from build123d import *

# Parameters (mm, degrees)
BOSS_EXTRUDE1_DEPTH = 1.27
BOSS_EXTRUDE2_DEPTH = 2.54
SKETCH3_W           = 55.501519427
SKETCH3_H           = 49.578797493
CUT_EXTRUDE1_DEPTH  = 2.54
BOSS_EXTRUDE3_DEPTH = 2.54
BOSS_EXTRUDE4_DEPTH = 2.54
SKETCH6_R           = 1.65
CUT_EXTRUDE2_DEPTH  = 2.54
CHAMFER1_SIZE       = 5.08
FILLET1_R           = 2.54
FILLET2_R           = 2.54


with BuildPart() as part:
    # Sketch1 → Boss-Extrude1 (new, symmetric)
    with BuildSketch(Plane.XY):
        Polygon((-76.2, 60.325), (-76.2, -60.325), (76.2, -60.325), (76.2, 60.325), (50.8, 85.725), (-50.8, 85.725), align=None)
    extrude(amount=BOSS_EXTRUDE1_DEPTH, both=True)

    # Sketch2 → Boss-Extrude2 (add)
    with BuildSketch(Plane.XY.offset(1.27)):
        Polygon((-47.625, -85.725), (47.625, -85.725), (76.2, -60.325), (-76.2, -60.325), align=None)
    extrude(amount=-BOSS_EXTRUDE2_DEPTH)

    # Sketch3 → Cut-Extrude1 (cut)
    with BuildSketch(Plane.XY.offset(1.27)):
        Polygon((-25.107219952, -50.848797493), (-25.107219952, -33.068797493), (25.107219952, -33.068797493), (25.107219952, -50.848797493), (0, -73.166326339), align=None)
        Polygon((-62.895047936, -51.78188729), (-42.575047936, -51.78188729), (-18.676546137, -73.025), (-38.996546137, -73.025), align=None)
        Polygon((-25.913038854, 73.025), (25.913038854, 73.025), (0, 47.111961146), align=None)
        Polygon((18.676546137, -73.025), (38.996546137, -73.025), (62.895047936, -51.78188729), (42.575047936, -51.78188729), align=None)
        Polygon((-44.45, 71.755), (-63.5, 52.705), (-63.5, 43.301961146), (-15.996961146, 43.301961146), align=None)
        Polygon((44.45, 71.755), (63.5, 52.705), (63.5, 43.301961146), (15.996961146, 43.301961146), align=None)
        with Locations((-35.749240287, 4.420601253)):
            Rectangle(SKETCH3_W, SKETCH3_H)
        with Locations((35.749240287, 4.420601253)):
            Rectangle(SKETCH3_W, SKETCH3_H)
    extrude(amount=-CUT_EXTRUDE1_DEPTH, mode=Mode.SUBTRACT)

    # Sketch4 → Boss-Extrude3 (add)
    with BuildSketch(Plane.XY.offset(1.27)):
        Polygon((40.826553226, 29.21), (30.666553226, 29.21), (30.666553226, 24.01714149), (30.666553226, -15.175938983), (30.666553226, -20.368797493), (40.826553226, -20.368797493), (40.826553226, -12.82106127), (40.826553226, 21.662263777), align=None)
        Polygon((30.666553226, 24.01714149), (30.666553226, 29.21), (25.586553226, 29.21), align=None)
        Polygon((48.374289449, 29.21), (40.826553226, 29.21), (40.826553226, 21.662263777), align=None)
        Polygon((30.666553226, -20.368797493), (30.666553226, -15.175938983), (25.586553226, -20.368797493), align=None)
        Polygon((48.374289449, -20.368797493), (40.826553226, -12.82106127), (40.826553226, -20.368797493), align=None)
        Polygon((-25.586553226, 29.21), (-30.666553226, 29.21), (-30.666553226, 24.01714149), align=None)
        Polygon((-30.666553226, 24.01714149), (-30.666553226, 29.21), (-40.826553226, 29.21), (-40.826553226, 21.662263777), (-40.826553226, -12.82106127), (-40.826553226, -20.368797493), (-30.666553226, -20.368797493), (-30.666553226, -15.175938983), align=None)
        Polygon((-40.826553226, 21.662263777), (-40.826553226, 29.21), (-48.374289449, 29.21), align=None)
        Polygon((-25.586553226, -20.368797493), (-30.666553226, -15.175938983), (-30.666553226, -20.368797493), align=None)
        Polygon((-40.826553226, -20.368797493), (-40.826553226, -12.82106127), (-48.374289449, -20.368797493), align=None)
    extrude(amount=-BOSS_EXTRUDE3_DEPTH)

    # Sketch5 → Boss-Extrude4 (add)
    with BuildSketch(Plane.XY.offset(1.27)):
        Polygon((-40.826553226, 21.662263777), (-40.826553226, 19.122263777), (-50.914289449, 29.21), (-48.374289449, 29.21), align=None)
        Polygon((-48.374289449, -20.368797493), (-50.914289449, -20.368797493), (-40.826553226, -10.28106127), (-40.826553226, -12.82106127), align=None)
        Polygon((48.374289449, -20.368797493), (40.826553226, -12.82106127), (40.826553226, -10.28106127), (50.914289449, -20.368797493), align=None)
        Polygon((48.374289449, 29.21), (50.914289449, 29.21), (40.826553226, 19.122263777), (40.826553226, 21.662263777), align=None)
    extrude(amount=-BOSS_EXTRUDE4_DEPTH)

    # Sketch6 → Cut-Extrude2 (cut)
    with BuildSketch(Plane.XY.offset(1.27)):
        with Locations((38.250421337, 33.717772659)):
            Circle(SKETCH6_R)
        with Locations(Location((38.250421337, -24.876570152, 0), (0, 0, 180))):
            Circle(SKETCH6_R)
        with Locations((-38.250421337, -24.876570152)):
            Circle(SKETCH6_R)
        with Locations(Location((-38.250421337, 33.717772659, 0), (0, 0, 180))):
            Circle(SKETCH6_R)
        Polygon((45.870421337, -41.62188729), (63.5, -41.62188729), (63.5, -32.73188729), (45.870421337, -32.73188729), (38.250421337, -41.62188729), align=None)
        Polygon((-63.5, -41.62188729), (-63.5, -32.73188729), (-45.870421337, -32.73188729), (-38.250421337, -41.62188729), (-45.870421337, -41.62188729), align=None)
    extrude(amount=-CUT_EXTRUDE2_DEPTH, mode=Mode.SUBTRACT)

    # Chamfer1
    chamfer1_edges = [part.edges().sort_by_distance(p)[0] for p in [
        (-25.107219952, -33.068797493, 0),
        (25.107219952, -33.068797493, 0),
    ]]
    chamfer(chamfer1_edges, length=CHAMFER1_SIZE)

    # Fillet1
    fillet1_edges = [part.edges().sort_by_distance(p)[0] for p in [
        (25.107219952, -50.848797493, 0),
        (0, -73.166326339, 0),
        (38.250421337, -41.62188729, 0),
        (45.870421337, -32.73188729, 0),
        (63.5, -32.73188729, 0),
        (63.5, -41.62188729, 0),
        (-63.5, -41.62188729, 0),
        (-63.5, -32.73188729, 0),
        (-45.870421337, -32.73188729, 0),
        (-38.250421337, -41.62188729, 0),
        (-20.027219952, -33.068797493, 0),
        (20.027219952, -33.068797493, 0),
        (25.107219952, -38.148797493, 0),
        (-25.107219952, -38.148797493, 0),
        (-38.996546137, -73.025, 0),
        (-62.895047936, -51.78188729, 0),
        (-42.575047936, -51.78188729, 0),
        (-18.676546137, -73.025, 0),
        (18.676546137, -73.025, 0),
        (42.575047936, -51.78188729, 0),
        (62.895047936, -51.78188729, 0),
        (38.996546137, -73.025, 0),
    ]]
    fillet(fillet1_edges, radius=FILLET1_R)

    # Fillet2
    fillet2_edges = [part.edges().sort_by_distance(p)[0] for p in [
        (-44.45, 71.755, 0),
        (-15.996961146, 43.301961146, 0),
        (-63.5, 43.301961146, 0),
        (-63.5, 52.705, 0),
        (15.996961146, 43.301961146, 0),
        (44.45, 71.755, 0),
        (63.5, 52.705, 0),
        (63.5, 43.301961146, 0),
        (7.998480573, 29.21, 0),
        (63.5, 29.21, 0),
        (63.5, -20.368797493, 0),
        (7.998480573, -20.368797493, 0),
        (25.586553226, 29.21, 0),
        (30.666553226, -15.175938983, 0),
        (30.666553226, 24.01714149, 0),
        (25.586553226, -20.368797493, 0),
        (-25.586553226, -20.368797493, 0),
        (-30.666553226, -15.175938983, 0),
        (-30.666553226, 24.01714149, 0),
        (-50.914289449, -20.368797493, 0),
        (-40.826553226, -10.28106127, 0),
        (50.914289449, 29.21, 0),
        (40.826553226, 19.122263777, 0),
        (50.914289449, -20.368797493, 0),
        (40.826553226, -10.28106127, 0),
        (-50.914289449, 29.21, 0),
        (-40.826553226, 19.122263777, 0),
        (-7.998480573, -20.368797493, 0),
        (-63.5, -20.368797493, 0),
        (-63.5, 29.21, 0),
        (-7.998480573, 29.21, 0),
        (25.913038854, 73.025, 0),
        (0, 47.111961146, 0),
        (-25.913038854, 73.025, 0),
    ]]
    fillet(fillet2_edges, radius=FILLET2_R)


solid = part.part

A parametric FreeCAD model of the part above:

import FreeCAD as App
import Part
import Sketcher
from FreeCAD import Vector
Q = App.Units.Quantity


def edges_at(feature, points):
    """Names of the edges that pass closest to the given points."""
    edges = feature.Shape.Edges
    near = lambda p: min(range(len(edges)), key=lambda i: edges[i].distToShape(Part.Vertex(*p))[0])
    return sorted({f"Edge{near(p) + 1}" for p in points})

doc = App.newDocument("Part")
body = doc.addObject("PartDesign::Body", "Body")

sketch1 = doc.addObject("Sketcher::SketchObject", "Sketch")
body.addObject(sketch1)
sketch1.AttachmentSupport = (doc.XY_Plane, [""])
sketch1.MapMode = "FlatFace"
sketch1.addGeometry([
    Part.LineSegment(Vector(-76, 60, 0), Vector(-76, -60, 0)),
    Part.LineSegment(Vector(-76, -60, 0), Vector(76, -60, 0)),
    Part.LineSegment(Vector(76, -60, 0), Vector(76, 60, 0)),
    Part.LineSegment(Vector(76, 60, 0), Vector(51, 86, 0)),
    Part.LineSegment(Vector(51, 86, 0), Vector(-51, 86, 0)),
    Part.LineSegment(Vector(-51, 86, 0), Vector(-76, 60, 0)),
], False)
sketch1.addConstraint([
    Sketcher.Constraint("Coincident", 0, 2, 1, 1),
    Sketcher.Constraint("Coincident", 1, 2, 2, 1),
    Sketcher.Constraint("Coincident", 2, 2, 3, 1),
    Sketcher.Constraint("Coincident", 3, 2, 4, 1),
    Sketcher.Constraint("Coincident", 4, 2, 5, 1),
    Sketcher.Constraint("Coincident", 5, 2, 0, 1),
    Sketcher.Constraint("Vertical", 0),
    Sketcher.Constraint("Horizontal", 1),
    Sketcher.Constraint("Vertical", 2),
    Sketcher.Constraint("Horizontal", 4),
    Sketcher.Constraint("Symmetric", 0, 2, 2, 2, -1, 1),
    Sketcher.Constraint("Perpendicular", 3, 5),
    Sketcher.Constraint("Horizontal", 2, 2, 5, 2),
    Sketcher.Constraint("Equal", 3, 5),
    Sketcher.Constraint("DistanceX", 1, 1, 1, 2, Q("6 in")),
    Sketcher.Constraint("DistanceX", 4, 2, 4, 1, Q("4 in")),
    Sketcher.Constraint("DistanceY", 0, 2, 0, 1, Q("4.75 in")),
])
pad1 = doc.addObject("PartDesign::Pad", "Pad")
body.addObject(pad1)
pad1.Profile = sketch1
pad1.Length = Q("0.1 in")
pad1.Midplane = True

sketch2 = doc.addObject("Sketcher::SketchObject", "Sketch001")
body.addObject(sketch2)
sketch2.AttachmentSupport = (doc.XY_Plane, [""])
sketch2.MapMode = "FlatFace"
sketch2.AttachmentOffset = App.Placement(Vector(0, 0, 0.05 * 25.4), App.Rotation())
sketch2.addGeometry([
    Part.LineSegment(Vector(-48, -86, 0), Vector(48, -86, 0)),
    Part.LineSegment(Vector(48, -86, 0), Vector(76, -60, 0)),
    Part.LineSegment(Vector(76, -60, 0), Vector(-76, -60, 0)),
    Part.LineSegment(Vector(-76, -60, 0), Vector(-48, -86, 0)),
], False)
sketch2.addConstraint([
    Sketcher.Constraint("Coincident", 0, 2, 1, 1),
    Sketcher.Constraint("Coincident", 1, 2, 2, 1),
    Sketcher.Constraint("Coincident", 2, 2, 3, 1),
    Sketcher.Constraint("Coincident", 3, 2, 0, 1),
    Sketcher.Constraint("Horizontal", 0),
    Sketcher.Constraint("Horizontal", 2),
    Sketcher.Constraint("Equal", 1, 3),
    Sketcher.Constraint("DistanceX", 2, 2, 2, 1, Q("6 in")),
    Sketcher.Constraint("DistanceX", -1, 1, 1, 2, Q("3 in")),
    Sketcher.Constraint("DistanceY", 0, 2, 1, 2, Q("1 in")),
    Sketcher.Constraint("DistanceX", 0, 1, 0, 2, Q("3.75 in")),
    Sketcher.Constraint("DistanceY", 0, 2, -1, 1, Q("3.375 in")),
])
pad2 = doc.addObject("PartDesign::Pad", "Pad001")
body.addObject(pad2)
pad2.Profile = sketch2
pad2.Length = Q("0.1 in")
pad2.Reversed = True

sketch3 = doc.addObject("Sketcher::SketchObject", "Sketch002")
body.addObject(sketch3)
sketch3.AttachmentSupport = (doc.XY_Plane, [""])
sketch3.MapMode = "FlatFace"
sketch3.AttachmentOffset = App.Placement(Vector(0, 0, 0.05 * 25.4), App.Rotation())
sketch3.addGeometry([
    Part.LineSegment(Vector(-25, -33, 0), Vector(-25, -51, 0)),
    Part.LineSegment(Vector(-25, -51, 0), Vector(0, -73, 0)),
    Part.LineSegment(Vector(0, -73, 0), Vector(25, -51, 0)),
    Part.LineSegment(Vector(25, -51, 0), Vector(25, -33, 0)),
    Part.LineSegment(Vector(25, -33, 0), Vector(-25, -33, 0)),
    Part.LineSegment(Vector(-43, -52, 0), Vector(-63, -52, 0)),
    Part.LineSegment(Vector(-63, -52, 0), Vector(-39, -73, 0)),
    Part.LineSegment(Vector(-39, -73, 0), Vector(-19, -73, 0)),
    Part.LineSegment(Vector(-19, -73, 0), Vector(-43, -52, 0)),
    Part.LineSegment(Vector(26, 73, 0), Vector(-26, 73, 0)),
    Part.LineSegment(Vector(-26, 73, 0), Vector(0, 47, 0)),
    Part.LineSegment(Vector(0, 47, 0), Vector(26, 73, 0)),
    Part.LineSegment(Vector(19, -73, 0), Vector(39, -73, 0)),
    Part.LineSegment(Vector(39, -73, 0), Vector(63, -52, 0)),
    Part.LineSegment(Vector(63, -52, 0), Vector(43, -52, 0)),
    Part.LineSegment(Vector(43, -52, 0), Vector(19, -73, 0)),
    Part.LineSegment(Vector(-44, 72, 0), Vector(-64, 53, 0)),
    Part.LineSegment(Vector(-64, 53, 0), Vector(-64, 43, 0)),
    Part.LineSegment(Vector(-64, 43, 0), Vector(-16, 43, 0)),
    Part.LineSegment(Vector(-16, 43, 0), Vector(-44, 72, 0)),
    Part.LineSegment(Vector(64, 53, 0), Vector(44, 72, 0)),
    Part.LineSegment(Vector(44, 72, 0), Vector(16, 43, 0)),
    Part.LineSegment(Vector(16, 43, 0), Vector(64, 43, 0)),
    Part.LineSegment(Vector(64, 43, 0), Vector(64, 53, 0)),
    Part.LineSegment(Vector(-64, 29, 0), Vector(-64, -20, 0)),
    Part.LineSegment(Vector(-64, -20, 0), Vector(-8, -20, 0)),
    Part.LineSegment(Vector(-8, -20, 0), Vector(-8, 29, 0)),
    Part.LineSegment(Vector(-8, 29, 0), Vector(-64, 29, 0)),
    Part.LineSegment(Vector(8, 29, 0), Vector(8, -20, 0)),
    Part.LineSegment(Vector(8, -20, 0), Vector(64, -20, 0)),
    Part.LineSegment(Vector(64, -20, 0), Vector(64, 29, 0)),
    Part.LineSegment(Vector(64, 29, 0), Vector(8, 29, 0)),
], False)
sketch3.addConstraint([
    Sketcher.Constraint("Coincident", 0, 2, 1, 1),
    Sketcher.Constraint("Coincident", 1, 2, 2, 1),
    Sketcher.Constraint("Coincident", 2, 2, 3, 1),
    Sketcher.Constraint("Coincident", 3, 2, 4, 1),
    Sketcher.Constraint("Coincident", 4, 2, 0, 1),
    Sketcher.Constraint("Coincident", 5, 2, 6, 1),
    Sketcher.Constraint("Coincident", 6, 2, 7, 1),
    Sketcher.Constraint("Coincident", 7, 2, 8, 1),
    Sketcher.Constraint("Coincident", 8, 2, 5, 1),
    Sketcher.Constraint("Coincident", 9, 2, 10, 1),
    Sketcher.Constraint("Coincident", 10, 2, 11, 1),
    Sketcher.Constraint("Coincident", 11, 2, 9, 1),
    Sketcher.Constraint("Coincident", 12, 2, 13, 1),
    Sketcher.Constraint("Coincident", 13, 2, 14, 1),
    Sketcher.Constraint("Coincident", 14, 2, 15, 1),
    Sketcher.Constraint("Coincident", 15, 2, 12, 1),
    Sketcher.Constraint("Coincident", 16, 2, 17, 1),
    Sketcher.Constraint("Coincident", 17, 2, 18, 1),
    Sketcher.Constraint("Coincident", 18, 2, 19, 1),
    Sketcher.Constraint("Coincident", 19, 2, 16, 1),
    Sketcher.Constraint("Coincident", 20, 2, 21, 1),
    Sketcher.Constraint("Coincident", 21, 2, 22, 1),
    Sketcher.Constraint("Coincident", 22, 2, 23, 1),
    Sketcher.Constraint("Coincident", 23, 2, 20, 1),
    Sketcher.Constraint("Coincident", 24, 2, 25, 1),
    Sketcher.Constraint("Coincident", 25, 2, 26, 1),
    Sketcher.Constraint("Coincident", 26, 2, 27, 1),
    Sketcher.Constraint("Coincident", 27, 2, 24, 1),
    Sketcher.Constraint("Coincident", 28, 2, 29, 1),
    Sketcher.Constraint("Coincident", 29, 2, 30, 1),
    Sketcher.Constraint("Coincident", 30, 2, 31, 1),
    Sketcher.Constraint("Coincident", 31, 2, 28, 1),
    Sketcher.Constraint("Vertical", 0),
    Sketcher.Constraint("Vertical", 3),
    Sketcher.Constraint("Horizontal", 4),
    Sketcher.Constraint("Horizontal", 5),
    Sketcher.Constraint("Horizontal", 7),
    Sketcher.Constraint("Horizontal", 9),
    Sketcher.Constraint("Horizontal", 12),
    Sketcher.Constraint("Horizontal", 14),
    Sketcher.Constraint("Vertical", 17),
    Sketcher.Constraint("Horizontal", 18),
    Sketcher.Constraint("Horizontal", 22),
    Sketcher.Constraint("Vertical", 23),
    Sketcher.Constraint("Vertical", 24),
    Sketcher.Constraint("Horizontal", 25),
    Sketcher.Constraint("Vertical", 26),
    Sketcher.Constraint("Horizontal", 27),
    Sketcher.Constraint("Vertical", 28),
    Sketcher.Constraint("Horizontal", 29),
    Sketcher.Constraint("Vertical", 30),
    Sketcher.Constraint("Horizontal", 31),
    Sketcher.Constraint("Symmetric", 0, 2, 2, 2, -2),
    Sketcher.Constraint("Symmetric", 6, 2, 12, 2, -2),
    Sketcher.Constraint("Symmetric", 5, 2, 13, 2, -2),
    Sketcher.Constraint("Symmetric", 19, 2, 20, 2, -2),
    Sketcher.Constraint("Symmetric", 18, 2, 21, 2, -2),
    Sketcher.Constraint("Symmetric", 16, 2, 23, 2, -2),
    Sketcher.Constraint("Symmetric", 25, 2, 28, 2, -2),
    Sketcher.Constraint("Symmetric", 27, 2, 30, 2, -2),
    Sketcher.Constraint("PointOnObject", 1, 2, -2),
    Sketcher.Constraint("PointOnObject", 10, 2, -2),
    Sketcher.Constraint("Parallel", 1, 6),
    Sketcher.Constraint("Parallel", 6, 8),
    Sketcher.Constraint("Perpendicular", 10, 11),
    Sketcher.Constraint("Parallel", 13, 15),
    Sketcher.Constraint("Parallel", 11, 16),
    Sketcher.Constraint("Perpendicular", 16, 19),
    Sketcher.Constraint("Parallel", 19, 20),
    Sketcher.Constraint("Vertical", 17, 2, 24, 2),
    Sketcher.Constraint("Equal", 7, 12),
    Sketcher.Constraint("DistanceX", 5, 2, 5, 1, Q("0.8 in")),
    Sketcher.Constraint("DistanceY", 0, 2, 0, 1, Q("0.7 in")),
    Sketcher.Constraint("DistanceX", 16, 2, -1, 1, Q("2.5 in")),
    Sketcher.Constraint("DistanceY", 16, 2, 9, 2, Q("0.8 in")),
    Sketcher.Constraint("DistanceX", 19, 2, 20, 2, Q("3.5 in")),
    Sketcher.Constraint("DistanceY", 4, 2, 24, 2, Q("0.5 in")),
    Sketcher.Constraint("DistanceY", -1, 1, 26, 2, Q("1.15 in")),
    Sketcher.Constraint("DistanceY", 17, 2, 10, 2, Q("0.15 in")),
    Sketcher.Constraint("DistanceY", 6, 2, -1, 1, Q("2.875 in")),
    Sketcher.Constraint("DistanceY", -1, 1, 9, 2, Q("2.875 in")),
    Sketcher.Constraint("DistanceX", 4, 2, 4, 1, 50.21444),
    Sketcher.Constraint("DistanceX", 18, 1, 18, 2, 47.503039),
    Sketcher.Constraint("DistanceX", 25, 1, 25, 2, 55.501519),
    Sketcher.Constraint("DistanceX", 5, 2, 6, 2, 23.898502),
    Sketcher.Constraint("Distance", 1, 33.592329),
    Sketcher.Constraint("DistanceY", 24, 2, 24, 1, 49.578797),
    Sketcher.Constraint("DistanceX", 8, 2, 9, 2, 16.662009),
])
pocket1 = doc.addObject("PartDesign::Pocket", "Pocket")
body.addObject(pocket1)
pocket1.Profile = sketch3
pocket1.Length = Q("0.1 in")

sketch4 = doc.addObject("Sketcher::SketchObject", "Sketch003")
body.addObject(sketch4)
sketch4.AttachmentSupport = (doc.XY_Plane, [""])
sketch4.MapMode = "FlatFace"
sketch4.AttachmentOffset = App.Placement(Vector(0, 0, 0.05 * 25.4), App.Rotation())
sketch4.addGeometry([
    Part.LineSegment(Vector(26, 29, 0), Vector(31, 24, 0)),
    Part.LineSegment(Vector(31, 24, 0), Vector(31, -15, 0)),
    Part.LineSegment(Vector(31, -15, 0), Vector(26, -20, 0)),
    Part.LineSegment(Vector(26, -20, 0), Vector(48, -20, 0)),
    Part.LineSegment(Vector(48, -20, 0), Vector(41, -13, 0)),
    Part.LineSegment(Vector(41, -13, 0), Vector(41, 22, 0)),
    Part.LineSegment(Vector(41, 22, 0), Vector(48, 29, 0)),
    Part.LineSegment(Vector(48, 29, 0), Vector(26, 29, 0)),
    Part.LineSegment(Vector(-26, 29, 0), Vector(-48, 29, 0)),
    Part.LineSegment(Vector(-48, 29, 0), Vector(-41, 22, 0)),
    Part.LineSegment(Vector(-41, 22, 0), Vector(-41, -13, 0)),
    Part.LineSegment(Vector(-41, -13, 0), Vector(-48, -20, 0)),
    Part.LineSegment(Vector(-48, -20, 0), Vector(-26, -20, 0)),
    Part.LineSegment(Vector(-26, -20, 0), Vector(-31, -15, 0)),
    Part.LineSegment(Vector(-31, -15, 0), Vector(-31, 24, 0)),
    Part.LineSegment(Vector(-31, 24, 0), Vector(-26, 29, 0)),
], False)
sketch4.addConstraint([
    Sketcher.Constraint("Coincident", 0, 2, 1, 1),
    Sketcher.Constraint("Coincident", 1, 2, 2, 1),
    Sketcher.Constraint("Coincident", 2, 2, 3, 1),
    Sketcher.Constraint("Coincident", 3, 2, 4, 1),
    Sketcher.Constraint("Coincident", 4, 2, 5, 1),
    Sketcher.Constraint("Coincident", 5, 2, 6, 1),
    Sketcher.Constraint("Coincident", 6, 2, 7, 1),
    Sketcher.Constraint("Coincident", 7, 2, 0, 1),
    Sketcher.Constraint("Coincident", 8, 2, 9, 1),
    Sketcher.Constraint("Coincident", 9, 2, 10, 1),
    Sketcher.Constraint("Coincident", 10, 2, 11, 1),
    Sketcher.Constraint("Coincident", 11, 2, 12, 1),
    Sketcher.Constraint("Coincident", 12, 2, 13, 1),
    Sketcher.Constraint("Coincident", 13, 2, 14, 1),
    Sketcher.Constraint("Coincident", 14, 2, 15, 1),
    Sketcher.Constraint("Coincident", 15, 2, 8, 1),
    Sketcher.Constraint("Vertical", 1),
    Sketcher.Constraint("Horizontal", 3),
    Sketcher.Constraint("Vertical", 5),
    Sketcher.Constraint("Horizontal", 7),
    Sketcher.Constraint("Horizontal", 8),
    Sketcher.Constraint("Vertical", 10),
    Sketcher.Constraint("Horizontal", 12),
    Sketcher.Constraint("Vertical", 14),
    Sketcher.Constraint("Symmetric", 6, 2, 8, 2, -2),
    Sketcher.Constraint("Symmetric", 5, 2, 9, 2, -2),
    Sketcher.Constraint("Symmetric", 3, 2, 11, 2, -2),
    Sketcher.Constraint("Symmetric", 1, 2, 13, 2, -2),
    Sketcher.Constraint("Perpendicular", 4, 6),
    Sketcher.Constraint("Perpendicular", 6, 9),
    Sketcher.Constraint("Perpendicular", 9, 11),
    Sketcher.Constraint("Parallel", 0, 13),
    Sketcher.Constraint("Parallel", 2, 15),
    Sketcher.Constraint("Horizontal", 0, 2, 14, 2),
    Sketcher.Constraint("Vertical", 3, 2, 6, 2),
    Sketcher.Constraint("Vertical", 2, 2, 7, 2),
    Sketcher.Constraint("Vertical", 12, 2, 15, 2),
    Sketcher.Constraint("DistanceX", 2, 2, 1, 2, Q("0.2 in")),
    Sketcher.Constraint("DistanceX", 1, 2, 4, 2, Q("0.4 in")),
    Sketcher.Constraint("DistanceY", -1, 1, 6, 2, Q("1.15 in")),
    Sketcher.Constraint("DistanceY", 1, 2, 1, 1, 39.19308),
    Sketcher.Constraint("Distance", 4, 10.674111),
    Sketcher.Constraint("DistanceY", 5, 1, 5, 2, 34.483325),
    Sketcher.Constraint("DistanceX", -1, 1, 3, 2, 48.374289),
])
pad3 = doc.addObject("PartDesign::Pad", "Pad002")
body.addObject(pad3)
pad3.Profile = sketch4
pad3.Length = Q("0.1 in")
pad3.Reversed = True

sketch5 = doc.addObject("Sketcher::SketchObject", "Sketch004")
body.addObject(sketch5)
sketch5.AttachmentSupport = (doc.XY_Plane, [""])
sketch5.MapMode = "FlatFace"
sketch5.AttachmentOffset = App.Placement(Vector(0, 0, 0.05 * 25.4), App.Rotation())
sketch5.addGeometry([
    Part.LineSegment(Vector(-40.8, 19.1, 0), Vector(-40.8, 21.7, 0)),
    Part.LineSegment(Vector(-40.8, 21.7, 0), Vector(-48.4, 29.2, 0)),
    Part.LineSegment(Vector(-48.4, 29.2, 0), Vector(-50.9, 29.2, 0)),
    Part.LineSegment(Vector(-50.9, 29.2, 0), Vector(-40.8, 19.1, 0)),
    Part.LineSegment(Vector(-50.9, -20.4, 0), Vector(-48.4, -20.4, 0)),
    Part.LineSegment(Vector(-48.4, -20.4, 0), Vector(-40.8, -12.8, 0)),
    Part.LineSegment(Vector(-40.8, -12.8, 0), Vector(-40.8, -10.3, 0)),
    Part.LineSegment(Vector(-40.8, -10.3, 0), Vector(-50.9, -20.4, 0)),
    Part.LineSegment(Vector(40.8, -12.8, 0), Vector(48.4, -20.4, 0)),
    Part.LineSegment(Vector(48.4, -20.4, 0), Vector(50.9, -20.4, 0)),
    Part.LineSegment(Vector(50.9, -20.4, 0), Vector(40.8, -10.3, 0)),
    Part.LineSegment(Vector(40.8, -10.3, 0), Vector(40.8, -12.8, 0)),
    Part.LineSegment(Vector(50.9, 29.2, 0), Vector(48.4, 29.2, 0)),
    Part.LineSegment(Vector(48.4, 29.2, 0), Vector(40.8, 21.7, 0)),
    Part.LineSegment(Vector(40.8, 21.7, 0), Vector(40.8, 19.1, 0)),
    Part.LineSegment(Vector(40.8, 19.1, 0), Vector(50.9, 29.2, 0)),
], False)
sketch5.addConstraint([
    Sketcher.Constraint("Coincident", 0, 2, 1, 1),
    Sketcher.Constraint("Coincident", 1, 2, 2, 1),
    Sketcher.Constraint("Coincident", 2, 2, 3, 1),
    Sketcher.Constraint("Coincident", 3, 2, 0, 1),
    Sketcher.Constraint("Coincident", 4, 2, 5, 1),
    Sketcher.Constraint("Coincident", 5, 2, 6, 1),
    Sketcher.Constraint("Coincident", 6, 2, 7, 1),
    Sketcher.Constraint("Coincident", 7, 2, 4, 1),
    Sketcher.Constraint("Coincident", 8, 2, 9, 1),
    Sketcher.Constraint("Coincident", 9, 2, 10, 1),
    Sketcher.Constraint("Coincident", 10, 2, 11, 1),
    Sketcher.Constraint("Coincident", 11, 2, 8, 1),
    Sketcher.Constraint("Coincident", 12, 2, 13, 1),
    Sketcher.Constraint("Coincident", 13, 2, 14, 1),
    Sketcher.Constraint("Coincident", 14, 2, 15, 1),
    Sketcher.Constraint("Coincident", 15, 2, 12, 1),
    Sketcher.Constraint("Vertical", 0),
    Sketcher.Constraint("Horizontal", 2),
    Sketcher.Constraint("Horizontal", 4),
    Sketcher.Constraint("Vertical", 6),
    Sketcher.Constraint("Horizontal", 9),
    Sketcher.Constraint("Vertical", 11),
    Sketcher.Constraint("Horizontal", 12),
    Sketcher.Constraint("Vertical", 14),
    Sketcher.Constraint("Symmetric", 4, 2, 8, 2, -2),
    Sketcher.Constraint("Symmetric", 6, 2, 10, 2, -2),
    Sketcher.Constraint("Symmetric", 1, 2, 12, 2, -2),
    Sketcher.Constraint("Symmetric", 0, 2, 13, 2, -2),
    Sketcher.Constraint("Parallel", 1, 3),
    Sketcher.Constraint("Perpendicular", 3, 5),
    Sketcher.Constraint("Parallel", 5, 7),
    Sketcher.Constraint("Perpendicular", 7, 8),
    Sketcher.Constraint("Parallel", 8, 10),
    Sketcher.Constraint("Perpendicular", 10, 13),
    Sketcher.Constraint("Parallel", 13, 15),
    Sketcher.Constraint("Horizontal", 3, 2, 14, 2),
    Sketcher.Constraint("Vertical", 1, 2, 4, 2),
    Sketcher.Constraint("Vertical", 3, 2, 5, 2),
    Sketcher.Constraint("Vertical", 2, 2, 7, 2),
    Sketcher.Constraint("DistanceX", 2, 2, 2, 1, Q("0.1 in")),
    Sketcher.Constraint("DistanceY", -1, 1, 1, 2, Q("1.15 in")),
    Sketcher.Constraint("Distance", 1, 10.674111),
    Sketcher.Constraint("DistanceX", 1, 2, -1, 1, 48.374289),
    Sketcher.Constraint("DistanceY", 5, 2, -1, 1, 12.821061),
])
pad4 = doc.addObject("PartDesign::Pad", "Pad003")
body.addObject(pad4)
pad4.Profile = sketch5
pad4.Length = Q("0.1 in")
pad4.Reversed = True

sketch6 = doc.addObject("Sketcher::SketchObject", "Sketch005")
body.addObject(sketch6)
sketch6.AttachmentSupport = (doc.XY_Plane, [""])
sketch6.MapMode = "FlatFace"
sketch6.AttachmentOffset = App.Placement(Vector(0, 0, 0.05 * 25.4), App.Rotation())
sketch6.addGeometry([
    Part.Circle(Vector(38.3, 33.7, 0), Vector(0, 0, 1), 1.6),
    Part.Circle(Vector(38.3, -24.9, 0), Vector(0, 0, 1), 1.6),
    Part.Circle(Vector(-38.3, -24.9, 0), Vector(0, 0, 1), 1.6),
    Part.Circle(Vector(-38.3, 33.7, 0), Vector(0, 0, 1), 1.6),
    Part.LineSegment(Vector(63.5, -41.6, 0), Vector(63.5, -32.7, 0)),
    Part.LineSegment(Vector(63.5, -32.7, 0), Vector(45.9, -32.7, 0)),
    Part.LineSegment(Vector(45.9, -32.7, 0), Vector(38.3, -41.6, 0)),
    Part.LineSegment(Vector(38.3, -41.6, 0), Vector(63.5, -41.6, 0)),
    Part.LineSegment(Vector(-63.5, -32.7, 0), Vector(-63.5, -41.6, 0)),
    Part.LineSegment(Vector(-63.5, -41.6, 0), Vector(-38.3, -41.6, 0)),
    Part.LineSegment(Vector(-38.3, -41.6, 0), Vector(-45.9, -32.7, 0)),
    Part.LineSegment(Vector(-45.9, -32.7, 0), Vector(-63.5, -32.7, 0)),
], False)
sketch6.addConstraint([
    Sketcher.Constraint("Coincident", 4, 2, 5, 1),
    Sketcher.Constraint("Coincident", 5, 2, 6, 1),
    Sketcher.Constraint("Coincident", 6, 2, 7, 1),
    Sketcher.Constraint("Coincident", 7, 2, 4, 1),
    Sketcher.Constraint("Coincident", 8, 2, 9, 1),
    Sketcher.Constraint("Coincident", 9, 2, 10, 1),
    Sketcher.Constraint("Coincident", 10, 2, 11, 1),
    Sketcher.Constraint("Coincident", 11, 2, 8, 1),
    Sketcher.Constraint("Vertical", 4),
    Sketcher.Constraint("Horizontal", 5),
    Sketcher.Constraint("Horizontal", 7),
    Sketcher.Constraint("Vertical", 8),
    Sketcher.Constraint("Horizontal", 9),
    Sketcher.Constraint("Horizontal", 11),
    Sketcher.Constraint("Equal", 0, 1),
    Sketcher.Constraint("Equal", 1, 2),
    Sketcher.Constraint("Equal", 2, 3),
    Sketcher.Constraint("Symmetric", 1, 3, 2, 3, -2),
    Sketcher.Constraint("Symmetric", 0, 3, 3, 3, -2),
    Sketcher.Constraint("Symmetric", 7, 2, 8, 2, -2),
    Sketcher.Constraint("Symmetric", 5, 2, 10, 2, -2),
    Sketcher.Constraint("Vertical", 0, 3, 1, 3),
    Sketcher.Constraint("Vertical", 1, 3, 6, 2),
    Sketcher.Constraint("Vertical", 3, 3, 9, 2),
    Sketcher.Constraint("DistanceY", 4, 1, 4, 2, Q("0.35 in")),
    Sketcher.Constraint("DistanceX", -1, 1, 4, 2, Q("2.5 in")),
    Sketcher.Constraint("DistanceX", 1, 3, 5, 2, Q("0.3 in")),
    Sketcher.Constraint("Diameter", 0, 3.3),
    Sketcher.Constraint("DistanceX", 5, 2, 5, 1, 17.629579),
    Sketcher.Constraint("DistanceY", 1, 3, -1, 1, 24.87657),
    Sketcher.Constraint("DistanceY", 4, 2, 0, 3, 66.44966),
    Sketcher.Constraint("DistanceY", -1, 1, 0, 3, 33.717773),
])
pocket2 = doc.addObject("PartDesign::Pocket", "Pocket001")
body.addObject(pocket2)
pocket2.Profile = sketch6
pocket2.Length = Q("0.1 in")
doc.recompute()

chamfer = doc.addObject("PartDesign::Chamfer", "Chamfer")
body.addObject(chamfer)
chamfer.Base = (pocket2, edges_at(pocket2, [(-25.107, -33.069, 0), (25.107, -33.069, 0)]))
chamfer.Size = Q("0.2 in")
doc.recompute()

fillet = doc.addObject("PartDesign::Fillet", "Fillet")
body.addObject(fillet)
fillet.Base = (chamfer, edges_at(chamfer, [
    (25.107, -50.849, 0),
    (0, -73.166, 0),
    (38.25, -41.622, 0),
    (45.87, -32.732, 0),
    (63.5, -32.732, 0),
    (63.5, -41.622, 0),
    (-63.5, -41.622, 0),
    (-63.5, -32.732, 0),
    (-45.87, -32.732, 0),
    (-38.25, -41.622, 0),
    (-20.027, -33.069, 0),
    (20.027, -33.069, 0),
    (25.107, -38.149, 0),
    (-25.107, -38.149, 0),
    (-38.997, -73.025, 0),
    (-62.895, -51.782, 0),
    (-42.575, -51.782, 0),
    (-18.677, -73.025, 0),
    (18.677, -73.025, 0),
    (42.575, -51.782, 0),
    (62.895, -51.782, 0),
    (38.997, -73.025, 0),
]))
fillet.Radius = Q("0.1 in")
doc.recompute()

fillet2 = doc.addObject("PartDesign::Fillet", "Fillet001")
body.addObject(fillet2)
fillet2.Base = (fillet, edges_at(fillet, [
    (-44.45, 71.755, 0),
    (-15.997, 43.302, 0),
    (-63.5, 43.302, 0),
    (-63.5, 52.705, 0),
    (15.997, 43.302, 0),
    (44.45, 71.755, 0),
    (63.5, 52.705, 0),
    (63.5, 43.302, 0),
    (7.998, 29.21, 0),
    (63.5, 29.21, 0),
    (63.5, -20.369, 0),
    (7.998, -20.369, 0),
    (25.587, 29.21, 0),
    (30.667, -15.176, 0),
    (30.667, 24.017, 0),
    (25.587, -20.369, 0),
    (-25.587, -20.369, 0),
    (-30.667, -15.176, 0),
    (-30.667, 24.017, 0),
    (-50.914, -20.369, 0),
    (-40.827, -10.281, 0),
    (50.914, 29.21, 0),
    (40.827, 19.122, 0),
    (50.914, -20.369, 0),
    (40.827, -10.281, 0),
    (-50.914, 29.21, 0),
    (-40.827, 19.122, 0),
    (-7.998, -20.369, 0),
    (-63.5, -20.369, 0),
    (-63.5, 29.21, 0),
    (-7.998, 29.21, 0),
    (25.913, 73.025, 0),
    (0, 47.112, 0),
    (-25.913, 73.025, 0),
]))
fillet2.Radius = Q("0.1 in")

doc.recompute()
